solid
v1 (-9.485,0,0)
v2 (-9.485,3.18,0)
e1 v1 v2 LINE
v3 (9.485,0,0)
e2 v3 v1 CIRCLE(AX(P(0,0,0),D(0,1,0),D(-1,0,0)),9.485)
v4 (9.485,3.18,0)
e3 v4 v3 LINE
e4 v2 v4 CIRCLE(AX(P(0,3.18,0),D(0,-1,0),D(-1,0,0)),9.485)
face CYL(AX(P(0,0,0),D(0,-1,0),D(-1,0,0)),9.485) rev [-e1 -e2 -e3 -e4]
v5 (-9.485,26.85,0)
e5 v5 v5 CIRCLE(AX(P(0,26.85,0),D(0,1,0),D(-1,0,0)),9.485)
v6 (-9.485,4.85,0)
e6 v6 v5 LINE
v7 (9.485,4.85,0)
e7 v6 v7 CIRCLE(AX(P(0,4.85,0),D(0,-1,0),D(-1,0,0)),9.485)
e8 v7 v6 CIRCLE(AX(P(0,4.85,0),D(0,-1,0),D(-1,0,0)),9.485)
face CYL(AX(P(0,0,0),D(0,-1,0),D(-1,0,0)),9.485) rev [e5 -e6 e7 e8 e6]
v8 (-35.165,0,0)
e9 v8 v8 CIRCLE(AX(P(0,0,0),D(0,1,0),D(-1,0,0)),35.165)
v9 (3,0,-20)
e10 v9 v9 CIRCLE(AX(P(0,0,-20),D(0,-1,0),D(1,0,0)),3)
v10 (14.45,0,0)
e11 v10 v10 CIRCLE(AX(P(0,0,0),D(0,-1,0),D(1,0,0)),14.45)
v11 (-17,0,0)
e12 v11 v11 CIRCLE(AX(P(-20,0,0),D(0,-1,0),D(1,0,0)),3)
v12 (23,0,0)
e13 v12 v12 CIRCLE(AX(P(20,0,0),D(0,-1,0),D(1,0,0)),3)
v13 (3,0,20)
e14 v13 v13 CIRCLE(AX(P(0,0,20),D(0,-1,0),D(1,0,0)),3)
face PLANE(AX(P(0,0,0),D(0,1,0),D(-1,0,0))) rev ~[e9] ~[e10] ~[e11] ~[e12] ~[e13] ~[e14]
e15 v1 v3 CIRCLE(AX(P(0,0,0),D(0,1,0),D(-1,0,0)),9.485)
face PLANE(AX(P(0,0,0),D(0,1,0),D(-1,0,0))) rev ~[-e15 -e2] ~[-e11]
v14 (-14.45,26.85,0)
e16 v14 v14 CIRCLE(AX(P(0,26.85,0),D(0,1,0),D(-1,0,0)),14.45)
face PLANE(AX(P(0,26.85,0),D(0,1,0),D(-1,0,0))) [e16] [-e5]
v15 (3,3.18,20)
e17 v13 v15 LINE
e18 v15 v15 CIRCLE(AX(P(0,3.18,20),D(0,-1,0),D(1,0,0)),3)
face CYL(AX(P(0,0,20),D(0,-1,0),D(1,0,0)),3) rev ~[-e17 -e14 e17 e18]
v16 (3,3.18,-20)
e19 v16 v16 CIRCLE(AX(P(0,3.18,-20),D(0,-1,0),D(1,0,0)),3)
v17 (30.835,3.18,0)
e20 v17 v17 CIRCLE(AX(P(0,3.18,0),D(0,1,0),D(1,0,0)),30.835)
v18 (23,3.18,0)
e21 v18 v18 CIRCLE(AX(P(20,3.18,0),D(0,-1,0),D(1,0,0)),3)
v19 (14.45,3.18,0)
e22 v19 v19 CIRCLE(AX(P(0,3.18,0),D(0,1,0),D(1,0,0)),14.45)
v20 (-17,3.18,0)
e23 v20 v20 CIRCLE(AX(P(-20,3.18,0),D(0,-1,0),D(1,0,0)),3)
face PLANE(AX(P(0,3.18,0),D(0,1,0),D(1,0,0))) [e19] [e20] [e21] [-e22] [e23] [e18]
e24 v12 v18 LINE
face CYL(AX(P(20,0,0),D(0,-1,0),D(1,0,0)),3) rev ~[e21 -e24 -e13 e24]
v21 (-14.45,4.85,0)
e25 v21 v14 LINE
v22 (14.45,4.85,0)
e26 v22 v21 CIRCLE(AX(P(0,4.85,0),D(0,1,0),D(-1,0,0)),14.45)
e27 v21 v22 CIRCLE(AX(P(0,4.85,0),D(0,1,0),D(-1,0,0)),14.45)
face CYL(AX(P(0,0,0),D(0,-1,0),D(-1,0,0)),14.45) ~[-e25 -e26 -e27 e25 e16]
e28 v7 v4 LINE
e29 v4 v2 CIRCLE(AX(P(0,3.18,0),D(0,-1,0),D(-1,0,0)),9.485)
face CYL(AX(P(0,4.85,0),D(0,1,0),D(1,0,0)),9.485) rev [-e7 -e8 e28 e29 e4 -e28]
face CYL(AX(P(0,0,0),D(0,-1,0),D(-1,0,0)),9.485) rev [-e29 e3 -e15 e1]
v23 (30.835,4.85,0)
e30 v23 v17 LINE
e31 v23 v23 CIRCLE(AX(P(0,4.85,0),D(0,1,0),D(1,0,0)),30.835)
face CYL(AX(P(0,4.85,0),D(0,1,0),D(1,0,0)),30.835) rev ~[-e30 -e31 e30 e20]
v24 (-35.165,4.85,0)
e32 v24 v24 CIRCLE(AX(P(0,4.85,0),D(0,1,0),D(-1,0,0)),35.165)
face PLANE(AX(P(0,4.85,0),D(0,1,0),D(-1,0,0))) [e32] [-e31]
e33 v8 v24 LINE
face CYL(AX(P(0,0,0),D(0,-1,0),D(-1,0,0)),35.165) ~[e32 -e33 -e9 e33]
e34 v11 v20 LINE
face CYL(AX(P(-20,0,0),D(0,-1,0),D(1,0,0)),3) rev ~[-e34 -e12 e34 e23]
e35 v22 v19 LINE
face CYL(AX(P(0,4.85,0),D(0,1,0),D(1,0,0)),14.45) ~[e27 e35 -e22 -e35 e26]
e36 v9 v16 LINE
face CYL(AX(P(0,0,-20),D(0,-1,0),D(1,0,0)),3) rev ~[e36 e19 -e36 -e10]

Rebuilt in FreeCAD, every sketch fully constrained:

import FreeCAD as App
import Part
import Sketcher

doc = App.newDocument("Part")
params = doc.addObject("Spreadsheet::Sheet", "Params")
for row, (alias, value) in enumerate([
    ("sketch1_diameter", "28.9 mm"),
    ("sketch1_diameter2", "18.97 mm"),
    ("pad1_length", "26.85 mm"),
    ("sketch2_diameter", "28.9 mm"),
    ("sketch2_diameter2", "70.33 mm"),
    ("pad2_length", "4.85 mm"),
    ("sketch3_diameter", "61.67 mm"),
    ("pocket1_length", "1.67 mm"),
    ("sketch4_diameter", "28.9 mm"),
    ("sketch4_diameter2", "18.97 mm"),
    ("pad3_length", "4.85 mm"),
    ("sketch5_diameter", "6 mm"),
    ("pocket2_length", "26.85 mm"),
], start=1):
    params.set(f"A{row}", alias)
    params.set(f"B{row}", "=" + value)
    params.setAlias(f"B{row}", alias)

body = doc.addObject("PartDesign::Body", "Body")
body.AllowCompound = True

# Sketch on XZ plane
sketch1 = body.newObject("Sketcher::SketchObject", "Sketch")
sketch1.AttachmentSupport = (doc.getObject("XZ_Plane"), [""])
sketch1.MapMode = "FlatFace"
sketch1.addGeometry(Part.Circle(App.Vector(0, 0, 0), App.Vector(0, 0, 1), 14), False)
sketch1.addGeometry(Part.Circle(App.Vector(0, 0, 0), App.Vector(0, 0, 1), 9), False)
sketch1.addConstraint(Sketcher.Constraint("Coincident", 0, 3, -1, 1))
sketch1.addConstraint(Sketcher.Constraint("Coincident", 1, 3, -1, 1))
sketch1.addConstraint(Sketcher.Constraint("Diameter", 0, 28.9))
sketch1.addConstraint(Sketcher.Constraint("Diameter", 1, 18.97))
sketch1.setExpression("Constraints[2]", "Params.sketch1_diameter")
sketch1.setExpression("Constraints[3]", "Params.sketch1_diameter2")
pad1 = body.newObject("PartDesign::Pad", "Pad")
pad1.Profile = sketch1
pad1.setExpression("Length", "Params.pad1_length")
pad1.Reversed = True

# Sketch on XZ plane
sketch2 = body.newObject("Sketcher::SketchObject", "Sketch001")
sketch2.AttachmentSupport = (doc.getObject("XZ_Plane"), [""])
sketch2.MapMode = "FlatFace"
sketch2.addGeometry(Part.Circle(App.Vector(0, 0, 0), App.Vector(0, 0, 1), 35), False)
sketch2.addGeometry(Part.Circle(App.Vector(0, 0, 0), App.Vector(0, 0, 1), 14), False)
sketch2.addConstraint(Sketcher.Constraint("Coincident", 0, 3, -1, 1))
sketch2.addConstraint(Sketcher.Constraint("Coincident", 1, 3, -1, 1))
sketch2.addConstraint(Sketcher.Constraint("Diameter", 1, 28.9))
sketch2.addConstraint(Sketcher.Constraint("Diameter", 0, 70.33))
sketch2.setExpression("Constraints[2]", "Params.sketch2_diameter")
sketch2.setExpression("Constraints[3]", "Params.sketch2_diameter2")
pad2 = body.newObject("PartDesign::Pad", "Pad001")
pad2.Profile = sketch2
pad2.setExpression("Length", "Params.pad2_length")
pad2.Reversed = True

# Sketch on XZ plane
sketch3 = body.newObject("Sketcher::SketchObject", "Sketch002")
sketch3.AttachmentSupport = (doc.getObject("XZ_Plane"), [""])
sketch3.MapMode = "FlatFace"
sketch3.AttachmentOffset = App.Placement(App.Vector(0, 0, -4.85), App.Rotation())
sketch3.addGeometry(Part.Circle(App.Vector(0, 0, 0), App.Vector(0, 0, 1), 31), False)
sketch3.addConstraint(Sketcher.Constraint("Coincident", 0, 3, -1, 1))
sketch3.addConstraint(Sketcher.Constraint("Diameter", 0, 61.67))
sketch3.setExpression("Constraints[1]", "Params.sketch3_diameter")
pocket1 = body.newObject("PartDesign::Pocket", "Pocket")
pocket1.Profile = sketch3
pocket1.setExpression("Length", "Params.pocket1_length")
pocket1.Reversed = True

# Sketch on XZ plane
sketch4 = body.newObject("Sketcher::SketchObject", "Sketch003")
sketch4.AttachmentSupport = (doc.getObject("XZ_Plane"), [""])
sketch4.MapMode = "FlatFace"
sketch4.AttachmentOffset = App.Placement(App.Vector(0, 0, -4.85), App.Rotation())
sketch4.addGeometry(Part.Circle(App.Vector(0, 0, 0), App.Vector(0, 0, 1), 14), False)
sketch4.addGeometry(Part.Circle(App.Vector(0, 0, 0), App.Vector(0, 0, 1), 9), False)
sketch4.addConstraint(Sketcher.Constraint("Coincident", 0, 3, -1, 1))
sketch4.addConstraint(Sketcher.Constraint("Coincident", 1, 3, -1, 1))
sketch4.addConstraint(Sketcher.Constraint("Diameter", 0, 28.9))
sketch4.addConstraint(Sketcher.Constraint("Diameter", 1, 18.97))
sketch4.setExpression("Constraints[2]", "Params.sketch4_diameter")
sketch4.setExpression("Constraints[3]", "Params.sketch4_diameter2")
pad3 = body.newObject("PartDesign::Pad", "Pad002")
pad3.Profile = sketch4
pad3.setExpression("Length", "Params.pad3_length")

# Sketch on XZ plane
sketch5 = body.newObject("Sketcher::SketchObject", "Sketch004")
sketch5.AttachmentSupport = (doc.getObject("XZ_Plane"), [""])
sketch5.MapMode = "FlatFace"
sketch5.addGeometry(Part.Circle(App.Vector(-20, 0, 0), App.Vector(0, 0, 1), 3), False)
sketch5.addGeometry(Part.Circle(App.Vector(0, -20, 0), App.Vector(0, 0, 1), 3), False)
sketch5.addGeometry(Part.Circle(App.Vector(20, 0, 0), App.Vector(0, 0, 1), 3), False)
sketch5.addGeometry(Part.Circle(App.Vector(0, 20, 0), App.Vector(0, 0, 1), 3), False)
sketch5.addConstraint(Sketcher.Constraint("Equal", 0, 1))
sketch5.addConstraint(Sketcher.Constraint("Equal", 1, 2))
sketch5.addConstraint(Sketcher.Constraint("Equal", 2, 3))
sketch5.addConstraint(Sketcher.Constraint("Symmetric", 0, 3, 2, 3, -1, 1))
sketch5.addConstraint(Sketcher.Constraint("Symmetric", 1, 3, 3, 3, -1, 1))
sketch5.addConstraint(Sketcher.Constraint("PointOnObject", 0, 3, -1))
sketch5.addConstraint(Sketcher.Constraint("PointOnObject", 1, 3, -2))
sketch5.addConstraint(Sketcher.Constraint("Diameter", 0, 6.0))
sketch5.addConstraint(Sketcher.Constraint("DistanceX", 0, 3, -1, 1, 20.0))
sketch5.addConstraint(Sketcher.Constraint("DistanceY", 1, 3, -1, 1, 20.0))
sketch5.setExpression("Constraints[7]", "Params.sketch5_diameter")
pocket2 = body.newObject("PartDesign::Pocket", "Pocket001")
pocket2.Profile = sketch5
pocket2.setExpression("Length", "Params.pocket2_length")

doc.recompute()
